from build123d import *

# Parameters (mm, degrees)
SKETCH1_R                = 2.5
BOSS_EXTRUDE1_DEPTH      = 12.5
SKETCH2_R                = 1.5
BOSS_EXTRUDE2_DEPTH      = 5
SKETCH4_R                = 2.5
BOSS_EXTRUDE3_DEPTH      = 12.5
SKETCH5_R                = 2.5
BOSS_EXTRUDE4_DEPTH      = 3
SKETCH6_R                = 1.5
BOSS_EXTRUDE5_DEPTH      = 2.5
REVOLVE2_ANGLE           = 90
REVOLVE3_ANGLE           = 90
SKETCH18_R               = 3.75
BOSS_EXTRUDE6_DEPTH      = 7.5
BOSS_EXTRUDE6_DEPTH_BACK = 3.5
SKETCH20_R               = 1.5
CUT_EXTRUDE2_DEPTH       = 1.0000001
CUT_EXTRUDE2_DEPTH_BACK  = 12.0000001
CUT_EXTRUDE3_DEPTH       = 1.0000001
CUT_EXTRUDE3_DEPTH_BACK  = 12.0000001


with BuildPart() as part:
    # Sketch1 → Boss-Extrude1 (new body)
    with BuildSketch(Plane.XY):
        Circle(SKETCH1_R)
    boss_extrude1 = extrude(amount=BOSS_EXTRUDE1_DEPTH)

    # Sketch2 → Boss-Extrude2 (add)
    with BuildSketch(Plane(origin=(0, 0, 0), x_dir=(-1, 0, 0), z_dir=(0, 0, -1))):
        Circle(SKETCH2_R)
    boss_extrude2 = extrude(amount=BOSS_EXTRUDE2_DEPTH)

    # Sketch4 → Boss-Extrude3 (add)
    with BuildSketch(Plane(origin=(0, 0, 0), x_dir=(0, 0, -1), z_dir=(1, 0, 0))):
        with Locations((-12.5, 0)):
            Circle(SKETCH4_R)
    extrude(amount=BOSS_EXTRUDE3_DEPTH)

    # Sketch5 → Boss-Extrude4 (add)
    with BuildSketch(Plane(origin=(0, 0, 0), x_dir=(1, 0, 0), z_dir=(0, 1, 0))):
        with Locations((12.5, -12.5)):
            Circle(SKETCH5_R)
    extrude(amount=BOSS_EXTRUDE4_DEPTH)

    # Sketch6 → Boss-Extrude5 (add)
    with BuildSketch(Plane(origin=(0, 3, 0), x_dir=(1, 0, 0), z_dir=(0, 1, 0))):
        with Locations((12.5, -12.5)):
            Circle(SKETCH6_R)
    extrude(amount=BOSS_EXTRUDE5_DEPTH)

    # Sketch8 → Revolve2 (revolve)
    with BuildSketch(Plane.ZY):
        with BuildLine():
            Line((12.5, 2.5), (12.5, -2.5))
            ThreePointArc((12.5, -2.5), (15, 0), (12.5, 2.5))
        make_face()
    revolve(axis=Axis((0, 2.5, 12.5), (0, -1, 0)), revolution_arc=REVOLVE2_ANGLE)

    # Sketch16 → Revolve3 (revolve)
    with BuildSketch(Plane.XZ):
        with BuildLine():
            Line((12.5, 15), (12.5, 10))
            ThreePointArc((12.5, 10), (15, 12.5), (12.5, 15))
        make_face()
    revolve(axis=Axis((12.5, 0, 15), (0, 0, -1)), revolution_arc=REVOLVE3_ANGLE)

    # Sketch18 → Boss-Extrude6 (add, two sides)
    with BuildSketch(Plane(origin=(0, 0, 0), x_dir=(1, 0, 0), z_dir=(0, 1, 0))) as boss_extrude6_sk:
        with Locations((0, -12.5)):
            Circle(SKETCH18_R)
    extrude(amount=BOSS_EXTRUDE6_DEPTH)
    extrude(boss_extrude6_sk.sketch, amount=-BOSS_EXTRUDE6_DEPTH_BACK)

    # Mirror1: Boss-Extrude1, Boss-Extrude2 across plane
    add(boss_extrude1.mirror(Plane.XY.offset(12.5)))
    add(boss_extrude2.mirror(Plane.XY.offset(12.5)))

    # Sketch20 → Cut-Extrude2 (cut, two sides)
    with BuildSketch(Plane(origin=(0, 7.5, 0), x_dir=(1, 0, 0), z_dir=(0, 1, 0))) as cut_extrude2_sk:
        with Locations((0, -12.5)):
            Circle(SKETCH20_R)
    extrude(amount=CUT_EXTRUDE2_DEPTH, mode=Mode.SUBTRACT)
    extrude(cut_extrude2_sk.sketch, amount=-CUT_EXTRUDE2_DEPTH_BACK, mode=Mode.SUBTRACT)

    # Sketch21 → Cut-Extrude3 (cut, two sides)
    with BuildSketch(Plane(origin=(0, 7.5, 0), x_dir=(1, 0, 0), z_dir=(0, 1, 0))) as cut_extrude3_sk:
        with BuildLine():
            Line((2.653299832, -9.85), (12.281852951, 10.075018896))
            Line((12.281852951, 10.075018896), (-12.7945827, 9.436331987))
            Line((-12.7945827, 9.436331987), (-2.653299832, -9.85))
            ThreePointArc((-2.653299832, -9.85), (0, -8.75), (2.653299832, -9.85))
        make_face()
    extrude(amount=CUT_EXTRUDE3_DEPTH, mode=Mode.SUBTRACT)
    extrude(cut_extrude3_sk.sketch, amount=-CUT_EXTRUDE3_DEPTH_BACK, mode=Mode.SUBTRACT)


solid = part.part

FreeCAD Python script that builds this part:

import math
import FreeCAD as App
import Part
import Sketcher

doc = App.newDocument("Part")
body = doc.addObject("PartDesign::Body", "Body")

# Sketch on XY plane
sketch1 = body.newObject("Sketcher::SketchObject", "Sketch")
sketch1.AttachmentSupport = (doc.getObject("XY_Plane"), [""])
sketch1.MapMode = "FlatFace"
sketch1.addGeometry(Part.Circle(App.Vector(0, 0, 0), App.Vector(0, 0, 1), 2.5), False)
sketch1.addConstraint(Sketcher.Constraint("Coincident", 0, 3, -1, 1))
sketch1.addConstraint(Sketcher.Constraint("Diameter", 0, 5.0))
pad1 = body.newObject("PartDesign::Pad", "Pad")
pad1.Profile = sketch1
pad1.Length = 12.5

# Sketch on XY plane
sketch2 = body.newObject("Sketcher::SketchObject", "Sketch001")
sketch2.AttachmentSupport = (doc.getObject("XY_Plane"), [""])
sketch2.MapMode = "FlatFace"
sketch2.addGeometry(Part.Circle(App.Vector(0, 0, 0), App.Vector(0, 0, 1), 1.5), False)
sketch2.addConstraint(Sketcher.Constraint("Coincident", 0, 3, -1, 1))
sketch2.addConstraint(Sketcher.Constraint("Diameter", 0, 3.0))
pad2 = body.newObject("PartDesign::Pad", "Pad001")
pad2.Profile = sketch2
pad2.Length = 5
pad2.Reversed = True

# Sketch on YZ plane
sketch3 = body.newObject("Sketcher::SketchObject", "Sketch002")
sketch3.AttachmentSupport = (doc.getObject("YZ_Plane"), [""])
sketch3.MapMode = "FlatFace"
sketch3.addGeometry(Part.Circle(App.Vector(0, 12.5, 0), App.Vector(0, 0, 1), 2.5), False)
sketch3.addConstraint(Sketcher.Constraint("PointOnObject", 0, 3, -2))
sketch3.addConstraint(Sketcher.Constraint("Diameter", 0, 5.0))
sketch3.addConstraint(Sketcher.Constraint("DistanceY", -1, 1, 0, 3, 12.5))
pad3 = body.newObject("PartDesign::Pad", "Pad002")
pad3.Profile = sketch3
pad3.Length = 12.5

# Sketch on XZ plane
sketch4 = body.newObject("Sketcher::SketchObject", "Sketch003")
sketch4.AttachmentSupport = (doc.getObject("XZ_Plane"), [""])
sketch4.MapMode = "FlatFace"
sketch4.addGeometry(Part.Circle(App.Vector(12.5, 12.5, 0), App.Vector(0, 0, 1), 2.5), False)
sketch4.addConstraint(Sketcher.Constraint("Diameter", 0, 5.0))
sketch4.addConstraint(Sketcher.Constraint("DistanceX", -1, 1, 0, 3, 12.5))
sketch4.addConstraint(Sketcher.Constraint("DistanceY", -1, 1, 0, 3, 12.5))
pad4 = body.newObject("PartDesign::Pad", "Pad003")
pad4.Profile = sketch4
pad4.Length = 3
pad4.Reversed = True

# Sketch on XZ plane
sketch5 = body.newObject("Sketcher::SketchObject", "Sketch004")
sketch5.AttachmentSupport = (doc.getObject("XZ_Plane"), [""])
sketch5.MapMode = "FlatFace"
sketch5.AttachmentOffset = App.Placement(App.Vector(0, 0, -3), App.Rotation())
sketch5.addGeometry(Part.Circle(App.Vector(12.5, 12.5, 0), App.Vector(0, 0, 1), 1.5), False)
sketch5.addConstraint(Sketcher.Constraint("Diameter", 0, 3.0))
sketch5.addConstraint(Sketcher.Constraint("DistanceX", -1, 1, 0, 3, 12.5))
sketch5.addConstraint(Sketcher.Constraint("DistanceY", -1, 1, 0, 3, 12.5))
pad5 = body.newObject("PartDesign::Pad", "Pad004")
pad5.Profile = sketch5
pad5.Length = 2.5
pad5.Reversed = True

# Sketch on YZ plane
sketch6 = body.newObject("Sketcher::SketchObject", "Sketch005")
sketch6.AttachmentSupport = (doc.getObject("YZ_Plane"), [""])
sketch6.MapMode = "FlatFace"
sketch6.addGeometry(Part.LineSegment(App.Vector(2.5, 12.5, 0), App.Vector(-2.5, 12.5, 0)), False)
sketch6.addGeometry(Part.ArcOfCircle(Part.Circle(App.Vector(0, 12.5, 0), App.Vector(0, 0, 1), 2.5), math.radians(0), math.radians(180)), False)
sketch6.addGeometry(Part.LineSegment(App.Vector(2.5, 12.5, 0), App.Vector(-2.5, 12.5, 0)), True)  # axis
sketch6.addConstraint(Sketcher.Constraint("Coincident", 0, 1, 1, 1))
sketch6.addConstraint(Sketcher.Constraint("Coincident", 1, 2, 0, 2))
sketch6.addConstraint(Sketcher.Constraint("Horizontal", 0))
sketch6.addConstraint(Sketcher.Constraint("Horizontal", 2))
sketch6.addConstraint(Sketcher.Constraint("Coincident", 2, 1, 0, 1))
sketch6.addConstraint(Sketcher.Constraint("PointOnObject", 1, 3, -2))
sketch6.addConstraint(Sketcher.Constraint("Horizontal", 1, 3, 0, 1))
sketch6.addConstraint(Sketcher.Constraint("Equal", 0, 2))
sketch6.addConstraint(Sketcher.Constraint("Radius", 1, 2.5))
sketch6.addConstraint(Sketcher.Constraint("DistanceY", -1, 1, 1, 3, 12.5))
revolution = body.newObject("PartDesign::Revolution", "Revolution")
revolution.Profile = sketch6
revolution.ReferenceAxis = (sketch6, ["Axis0"])
revolution.Angle = 90

# Sketch on XZ plane
sketch7 = body.newObject("Sketcher::SketchObject", "Sketch006")
sketch7.AttachmentSupport = (doc.getObject("XZ_Plane"), [""])
sketch7.MapMode = "FlatFace"
sketch7.addGeometry(Part.LineSegment(App.Vector(12.5, 15, 0), App.Vector(12.5, 10, 0)), False)
sketch7.addGeometry(Part.ArcOfCircle(Part.Circle(App.Vector(12.5, 12.5, 0), App.Vector(0, 0, 1), 2.5), math.radians(-90), math.radians(90)), False)
sketch7.addGeometry(Part.LineSegment(App.Vector(12.5, 15, 0), App.Vector(12.5, 10, 0)), True)  # axis
sketch7.addConstraint(Sketcher.Constraint("Coincident", 0, 1, 1, 2))
sketch7.addConstraint(Sketcher.Constraint("Coincident", 1, 1, 0, 2))
sketch7.addConstraint(Sketcher.Constraint("Vertical", 0))
sketch7.addConstraint(Sketcher.Constraint("Vertical", 2))
sketch7.addConstraint(Sketcher.Constraint("Coincident", 2, 1, 0, 1))
sketch7.addConstraint(Sketcher.Constraint("Vertical", 1, 3, 0, 1))
sketch7.addConstraint(Sketcher.Constraint("Equal", 0, 2))
sketch7.addConstraint(Sketcher.Constraint("Radius", 1, 2.5))
sketch7.addConstraint(Sketcher.Constraint("DistanceY", -1, 1, 0, 1, 15.0))
sketch7.addConstraint(Sketcher.Constraint("DistanceX", -1, 1, 1, 3, 12.5))
revolution2 = body.newObject("PartDesign::Revolution", "Revolution001")
revolution2.Profile = sketch7
revolution2.ReferenceAxis = (sketch7, ["Axis0"])
revolution2.Angle = 90

# Sketch on XZ plane
sketch8 = body.newObject("Sketcher::SketchObject", "Sketch007")
sketch8.AttachmentSupport = (doc.getObject("XZ_Plane"), [""])
sketch8.MapMode = "FlatFace"
sketch8.addGeometry(Part.Circle(App.Vector(0, 12.5, 0), App.Vector(0, 0, 1), 3.75), False)
sketch8.addConstraint(Sketcher.Constraint("PointOnObject", 0, 3, -2))
sketch8.addConstraint(Sketcher.Constraint("Diameter", 0, 7.5))
sketch8.addConstraint(Sketcher.Constraint("DistanceY", -1, 1, 0, 3, 12.5))
pad6 = body.newObject("PartDesign::Pad", "Pad005")
pad6.Profile = sketch8
pad6.Type = "TwoLengths"
pad6.Length = 7.5
pad6.Length2 = 3.5
pad6.Reversed = True
doc.recompute()

datumplane = body.newObject("PartDesign::Plane", "DatumPlane")
datumplane.AttachmentSupport = (doc.getObject("XY_Plane"), [""])
datumplane.MapMode = "FlatFace"
datumplane.AttachmentOffset = App.Placement(App.Vector(0, 0, 12.5), App.Rotation())
mirrored = body.newObject("PartDesign::Mirrored", "Mirrored")
mirrored.Originals = [pad1, pad2]
mirrored.MirrorPlane = (datumplane, [""])
body.Tip = mirrored

# Sketch on XZ plane
sketch9 = body.newObject("Sketcher::SketchObject", "Sketch008")
sketch9.AttachmentSupport = (doc.getObject("XZ_Plane"), [""])
sketch9.MapMode = "FlatFace"
sketch9.AttachmentOffset = App.Placement(App.Vector(0, 0, -7.5), App.Rotation())
sketch9.addGeometry(Part.Circle(App.Vector(0, 12.5, 0), App.Vector(0, 0, 1), 1.5), False)
sketch9.addConstraint(Sketcher.Constraint("PointOnObject", 0, 3, -2))
sketch9.addConstraint(Sketcher.Constraint("Diameter", 0, 3.0))
sketch9.addConstraint(Sketcher.Constraint("DistanceY", -1, 1, 0, 3, 12.5))
pocket1 = body.newObject("PartDesign::Pocket", "Pocket")
pocket1.Profile = sketch9
pocket1.Type = "ThroughAll"
pocket1.Midplane = True

# Sketch on XZ plane
sketch10 = body.newObject("Sketcher::SketchObject", "Sketch009")
sketch10.AttachmentSupport = (doc.getObject("XZ_Plane"), [""])
sketch10.MapMode = "FlatFace"
sketch10.AttachmentOffset = App.Placement(App.Vector(0, 0, -7.5), App.Rotation())
sketch10.addGeometry(Part.LineSegment(App.Vector(2.6533, 9.85, 0), App.Vector(12.281853, -10.075019, 0)), False)
sketch10.addGeometry(Part.LineSegment(App.Vector(12.281853, -10.075019, 0), App.Vector(-12.794583, -9.436332, 0)), False)
sketch10.addGeometry(Part.LineSegment(App.Vector(-12.794583, -9.436332, 0), App.Vector(-2.6533, 9.85, 0)), False)
sketch10.addGeometry(Part.ArcOfCircle(Part.Circle(App.Vector(0, 12.5, 0), App.Vector(0, 0, 1), 3.75), math.radians(-135.035651), math.radians(-44.964349)), False)
sketch10.addConstraint(Sketcher.Constraint("Coincident", 0, 2, 1, 1))
sketch10.addConstraint(Sketcher.Constraint("Coincident", 1, 2, 2, 1))
sketch10.addConstraint(Sketcher.Constraint("Coincident", 2, 2, 3, 1))
sketch10.addConstraint(Sketcher.Constraint("Coincident", 3, 2, 0, 1))
sketch10.addConstraint(Sketcher.Constraint("Symmetric", 2, 2, 3, 2, -2))
sketch10.addConstraint(Sketcher.Constraint("Radius", 3, 3.75))
sketch10.addConstraint(Sketcher.Constraint("DistanceY", -1, 1, 3, 3, 12.5))
sketch10.addConstraint(Sketcher.Constraint("DistanceY", -1, 1, 2, 2, 9.85))
sketch10.addConstraint(Sketcher.Constraint("DistanceY", 0, 2, -1, 1, 10.075019))
sketch10.addConstraint(Sketcher.Constraint("DistanceY", 1, 2, -1, 1, 9.436332))
sketch10.addConstraint(Sketcher.Constraint("Distance", 0, 22.129515))
sketch10.addConstraint(Sketcher.Constraint("Distance", 1, 25.084568))
pocket2 = body.newObject("PartDesign::Pocket", "Pocket001")
pocket2.Profile = sketch10
pocket2.Type = "ThroughAll"
pocket2.Midplane = True

doc.recompute()
